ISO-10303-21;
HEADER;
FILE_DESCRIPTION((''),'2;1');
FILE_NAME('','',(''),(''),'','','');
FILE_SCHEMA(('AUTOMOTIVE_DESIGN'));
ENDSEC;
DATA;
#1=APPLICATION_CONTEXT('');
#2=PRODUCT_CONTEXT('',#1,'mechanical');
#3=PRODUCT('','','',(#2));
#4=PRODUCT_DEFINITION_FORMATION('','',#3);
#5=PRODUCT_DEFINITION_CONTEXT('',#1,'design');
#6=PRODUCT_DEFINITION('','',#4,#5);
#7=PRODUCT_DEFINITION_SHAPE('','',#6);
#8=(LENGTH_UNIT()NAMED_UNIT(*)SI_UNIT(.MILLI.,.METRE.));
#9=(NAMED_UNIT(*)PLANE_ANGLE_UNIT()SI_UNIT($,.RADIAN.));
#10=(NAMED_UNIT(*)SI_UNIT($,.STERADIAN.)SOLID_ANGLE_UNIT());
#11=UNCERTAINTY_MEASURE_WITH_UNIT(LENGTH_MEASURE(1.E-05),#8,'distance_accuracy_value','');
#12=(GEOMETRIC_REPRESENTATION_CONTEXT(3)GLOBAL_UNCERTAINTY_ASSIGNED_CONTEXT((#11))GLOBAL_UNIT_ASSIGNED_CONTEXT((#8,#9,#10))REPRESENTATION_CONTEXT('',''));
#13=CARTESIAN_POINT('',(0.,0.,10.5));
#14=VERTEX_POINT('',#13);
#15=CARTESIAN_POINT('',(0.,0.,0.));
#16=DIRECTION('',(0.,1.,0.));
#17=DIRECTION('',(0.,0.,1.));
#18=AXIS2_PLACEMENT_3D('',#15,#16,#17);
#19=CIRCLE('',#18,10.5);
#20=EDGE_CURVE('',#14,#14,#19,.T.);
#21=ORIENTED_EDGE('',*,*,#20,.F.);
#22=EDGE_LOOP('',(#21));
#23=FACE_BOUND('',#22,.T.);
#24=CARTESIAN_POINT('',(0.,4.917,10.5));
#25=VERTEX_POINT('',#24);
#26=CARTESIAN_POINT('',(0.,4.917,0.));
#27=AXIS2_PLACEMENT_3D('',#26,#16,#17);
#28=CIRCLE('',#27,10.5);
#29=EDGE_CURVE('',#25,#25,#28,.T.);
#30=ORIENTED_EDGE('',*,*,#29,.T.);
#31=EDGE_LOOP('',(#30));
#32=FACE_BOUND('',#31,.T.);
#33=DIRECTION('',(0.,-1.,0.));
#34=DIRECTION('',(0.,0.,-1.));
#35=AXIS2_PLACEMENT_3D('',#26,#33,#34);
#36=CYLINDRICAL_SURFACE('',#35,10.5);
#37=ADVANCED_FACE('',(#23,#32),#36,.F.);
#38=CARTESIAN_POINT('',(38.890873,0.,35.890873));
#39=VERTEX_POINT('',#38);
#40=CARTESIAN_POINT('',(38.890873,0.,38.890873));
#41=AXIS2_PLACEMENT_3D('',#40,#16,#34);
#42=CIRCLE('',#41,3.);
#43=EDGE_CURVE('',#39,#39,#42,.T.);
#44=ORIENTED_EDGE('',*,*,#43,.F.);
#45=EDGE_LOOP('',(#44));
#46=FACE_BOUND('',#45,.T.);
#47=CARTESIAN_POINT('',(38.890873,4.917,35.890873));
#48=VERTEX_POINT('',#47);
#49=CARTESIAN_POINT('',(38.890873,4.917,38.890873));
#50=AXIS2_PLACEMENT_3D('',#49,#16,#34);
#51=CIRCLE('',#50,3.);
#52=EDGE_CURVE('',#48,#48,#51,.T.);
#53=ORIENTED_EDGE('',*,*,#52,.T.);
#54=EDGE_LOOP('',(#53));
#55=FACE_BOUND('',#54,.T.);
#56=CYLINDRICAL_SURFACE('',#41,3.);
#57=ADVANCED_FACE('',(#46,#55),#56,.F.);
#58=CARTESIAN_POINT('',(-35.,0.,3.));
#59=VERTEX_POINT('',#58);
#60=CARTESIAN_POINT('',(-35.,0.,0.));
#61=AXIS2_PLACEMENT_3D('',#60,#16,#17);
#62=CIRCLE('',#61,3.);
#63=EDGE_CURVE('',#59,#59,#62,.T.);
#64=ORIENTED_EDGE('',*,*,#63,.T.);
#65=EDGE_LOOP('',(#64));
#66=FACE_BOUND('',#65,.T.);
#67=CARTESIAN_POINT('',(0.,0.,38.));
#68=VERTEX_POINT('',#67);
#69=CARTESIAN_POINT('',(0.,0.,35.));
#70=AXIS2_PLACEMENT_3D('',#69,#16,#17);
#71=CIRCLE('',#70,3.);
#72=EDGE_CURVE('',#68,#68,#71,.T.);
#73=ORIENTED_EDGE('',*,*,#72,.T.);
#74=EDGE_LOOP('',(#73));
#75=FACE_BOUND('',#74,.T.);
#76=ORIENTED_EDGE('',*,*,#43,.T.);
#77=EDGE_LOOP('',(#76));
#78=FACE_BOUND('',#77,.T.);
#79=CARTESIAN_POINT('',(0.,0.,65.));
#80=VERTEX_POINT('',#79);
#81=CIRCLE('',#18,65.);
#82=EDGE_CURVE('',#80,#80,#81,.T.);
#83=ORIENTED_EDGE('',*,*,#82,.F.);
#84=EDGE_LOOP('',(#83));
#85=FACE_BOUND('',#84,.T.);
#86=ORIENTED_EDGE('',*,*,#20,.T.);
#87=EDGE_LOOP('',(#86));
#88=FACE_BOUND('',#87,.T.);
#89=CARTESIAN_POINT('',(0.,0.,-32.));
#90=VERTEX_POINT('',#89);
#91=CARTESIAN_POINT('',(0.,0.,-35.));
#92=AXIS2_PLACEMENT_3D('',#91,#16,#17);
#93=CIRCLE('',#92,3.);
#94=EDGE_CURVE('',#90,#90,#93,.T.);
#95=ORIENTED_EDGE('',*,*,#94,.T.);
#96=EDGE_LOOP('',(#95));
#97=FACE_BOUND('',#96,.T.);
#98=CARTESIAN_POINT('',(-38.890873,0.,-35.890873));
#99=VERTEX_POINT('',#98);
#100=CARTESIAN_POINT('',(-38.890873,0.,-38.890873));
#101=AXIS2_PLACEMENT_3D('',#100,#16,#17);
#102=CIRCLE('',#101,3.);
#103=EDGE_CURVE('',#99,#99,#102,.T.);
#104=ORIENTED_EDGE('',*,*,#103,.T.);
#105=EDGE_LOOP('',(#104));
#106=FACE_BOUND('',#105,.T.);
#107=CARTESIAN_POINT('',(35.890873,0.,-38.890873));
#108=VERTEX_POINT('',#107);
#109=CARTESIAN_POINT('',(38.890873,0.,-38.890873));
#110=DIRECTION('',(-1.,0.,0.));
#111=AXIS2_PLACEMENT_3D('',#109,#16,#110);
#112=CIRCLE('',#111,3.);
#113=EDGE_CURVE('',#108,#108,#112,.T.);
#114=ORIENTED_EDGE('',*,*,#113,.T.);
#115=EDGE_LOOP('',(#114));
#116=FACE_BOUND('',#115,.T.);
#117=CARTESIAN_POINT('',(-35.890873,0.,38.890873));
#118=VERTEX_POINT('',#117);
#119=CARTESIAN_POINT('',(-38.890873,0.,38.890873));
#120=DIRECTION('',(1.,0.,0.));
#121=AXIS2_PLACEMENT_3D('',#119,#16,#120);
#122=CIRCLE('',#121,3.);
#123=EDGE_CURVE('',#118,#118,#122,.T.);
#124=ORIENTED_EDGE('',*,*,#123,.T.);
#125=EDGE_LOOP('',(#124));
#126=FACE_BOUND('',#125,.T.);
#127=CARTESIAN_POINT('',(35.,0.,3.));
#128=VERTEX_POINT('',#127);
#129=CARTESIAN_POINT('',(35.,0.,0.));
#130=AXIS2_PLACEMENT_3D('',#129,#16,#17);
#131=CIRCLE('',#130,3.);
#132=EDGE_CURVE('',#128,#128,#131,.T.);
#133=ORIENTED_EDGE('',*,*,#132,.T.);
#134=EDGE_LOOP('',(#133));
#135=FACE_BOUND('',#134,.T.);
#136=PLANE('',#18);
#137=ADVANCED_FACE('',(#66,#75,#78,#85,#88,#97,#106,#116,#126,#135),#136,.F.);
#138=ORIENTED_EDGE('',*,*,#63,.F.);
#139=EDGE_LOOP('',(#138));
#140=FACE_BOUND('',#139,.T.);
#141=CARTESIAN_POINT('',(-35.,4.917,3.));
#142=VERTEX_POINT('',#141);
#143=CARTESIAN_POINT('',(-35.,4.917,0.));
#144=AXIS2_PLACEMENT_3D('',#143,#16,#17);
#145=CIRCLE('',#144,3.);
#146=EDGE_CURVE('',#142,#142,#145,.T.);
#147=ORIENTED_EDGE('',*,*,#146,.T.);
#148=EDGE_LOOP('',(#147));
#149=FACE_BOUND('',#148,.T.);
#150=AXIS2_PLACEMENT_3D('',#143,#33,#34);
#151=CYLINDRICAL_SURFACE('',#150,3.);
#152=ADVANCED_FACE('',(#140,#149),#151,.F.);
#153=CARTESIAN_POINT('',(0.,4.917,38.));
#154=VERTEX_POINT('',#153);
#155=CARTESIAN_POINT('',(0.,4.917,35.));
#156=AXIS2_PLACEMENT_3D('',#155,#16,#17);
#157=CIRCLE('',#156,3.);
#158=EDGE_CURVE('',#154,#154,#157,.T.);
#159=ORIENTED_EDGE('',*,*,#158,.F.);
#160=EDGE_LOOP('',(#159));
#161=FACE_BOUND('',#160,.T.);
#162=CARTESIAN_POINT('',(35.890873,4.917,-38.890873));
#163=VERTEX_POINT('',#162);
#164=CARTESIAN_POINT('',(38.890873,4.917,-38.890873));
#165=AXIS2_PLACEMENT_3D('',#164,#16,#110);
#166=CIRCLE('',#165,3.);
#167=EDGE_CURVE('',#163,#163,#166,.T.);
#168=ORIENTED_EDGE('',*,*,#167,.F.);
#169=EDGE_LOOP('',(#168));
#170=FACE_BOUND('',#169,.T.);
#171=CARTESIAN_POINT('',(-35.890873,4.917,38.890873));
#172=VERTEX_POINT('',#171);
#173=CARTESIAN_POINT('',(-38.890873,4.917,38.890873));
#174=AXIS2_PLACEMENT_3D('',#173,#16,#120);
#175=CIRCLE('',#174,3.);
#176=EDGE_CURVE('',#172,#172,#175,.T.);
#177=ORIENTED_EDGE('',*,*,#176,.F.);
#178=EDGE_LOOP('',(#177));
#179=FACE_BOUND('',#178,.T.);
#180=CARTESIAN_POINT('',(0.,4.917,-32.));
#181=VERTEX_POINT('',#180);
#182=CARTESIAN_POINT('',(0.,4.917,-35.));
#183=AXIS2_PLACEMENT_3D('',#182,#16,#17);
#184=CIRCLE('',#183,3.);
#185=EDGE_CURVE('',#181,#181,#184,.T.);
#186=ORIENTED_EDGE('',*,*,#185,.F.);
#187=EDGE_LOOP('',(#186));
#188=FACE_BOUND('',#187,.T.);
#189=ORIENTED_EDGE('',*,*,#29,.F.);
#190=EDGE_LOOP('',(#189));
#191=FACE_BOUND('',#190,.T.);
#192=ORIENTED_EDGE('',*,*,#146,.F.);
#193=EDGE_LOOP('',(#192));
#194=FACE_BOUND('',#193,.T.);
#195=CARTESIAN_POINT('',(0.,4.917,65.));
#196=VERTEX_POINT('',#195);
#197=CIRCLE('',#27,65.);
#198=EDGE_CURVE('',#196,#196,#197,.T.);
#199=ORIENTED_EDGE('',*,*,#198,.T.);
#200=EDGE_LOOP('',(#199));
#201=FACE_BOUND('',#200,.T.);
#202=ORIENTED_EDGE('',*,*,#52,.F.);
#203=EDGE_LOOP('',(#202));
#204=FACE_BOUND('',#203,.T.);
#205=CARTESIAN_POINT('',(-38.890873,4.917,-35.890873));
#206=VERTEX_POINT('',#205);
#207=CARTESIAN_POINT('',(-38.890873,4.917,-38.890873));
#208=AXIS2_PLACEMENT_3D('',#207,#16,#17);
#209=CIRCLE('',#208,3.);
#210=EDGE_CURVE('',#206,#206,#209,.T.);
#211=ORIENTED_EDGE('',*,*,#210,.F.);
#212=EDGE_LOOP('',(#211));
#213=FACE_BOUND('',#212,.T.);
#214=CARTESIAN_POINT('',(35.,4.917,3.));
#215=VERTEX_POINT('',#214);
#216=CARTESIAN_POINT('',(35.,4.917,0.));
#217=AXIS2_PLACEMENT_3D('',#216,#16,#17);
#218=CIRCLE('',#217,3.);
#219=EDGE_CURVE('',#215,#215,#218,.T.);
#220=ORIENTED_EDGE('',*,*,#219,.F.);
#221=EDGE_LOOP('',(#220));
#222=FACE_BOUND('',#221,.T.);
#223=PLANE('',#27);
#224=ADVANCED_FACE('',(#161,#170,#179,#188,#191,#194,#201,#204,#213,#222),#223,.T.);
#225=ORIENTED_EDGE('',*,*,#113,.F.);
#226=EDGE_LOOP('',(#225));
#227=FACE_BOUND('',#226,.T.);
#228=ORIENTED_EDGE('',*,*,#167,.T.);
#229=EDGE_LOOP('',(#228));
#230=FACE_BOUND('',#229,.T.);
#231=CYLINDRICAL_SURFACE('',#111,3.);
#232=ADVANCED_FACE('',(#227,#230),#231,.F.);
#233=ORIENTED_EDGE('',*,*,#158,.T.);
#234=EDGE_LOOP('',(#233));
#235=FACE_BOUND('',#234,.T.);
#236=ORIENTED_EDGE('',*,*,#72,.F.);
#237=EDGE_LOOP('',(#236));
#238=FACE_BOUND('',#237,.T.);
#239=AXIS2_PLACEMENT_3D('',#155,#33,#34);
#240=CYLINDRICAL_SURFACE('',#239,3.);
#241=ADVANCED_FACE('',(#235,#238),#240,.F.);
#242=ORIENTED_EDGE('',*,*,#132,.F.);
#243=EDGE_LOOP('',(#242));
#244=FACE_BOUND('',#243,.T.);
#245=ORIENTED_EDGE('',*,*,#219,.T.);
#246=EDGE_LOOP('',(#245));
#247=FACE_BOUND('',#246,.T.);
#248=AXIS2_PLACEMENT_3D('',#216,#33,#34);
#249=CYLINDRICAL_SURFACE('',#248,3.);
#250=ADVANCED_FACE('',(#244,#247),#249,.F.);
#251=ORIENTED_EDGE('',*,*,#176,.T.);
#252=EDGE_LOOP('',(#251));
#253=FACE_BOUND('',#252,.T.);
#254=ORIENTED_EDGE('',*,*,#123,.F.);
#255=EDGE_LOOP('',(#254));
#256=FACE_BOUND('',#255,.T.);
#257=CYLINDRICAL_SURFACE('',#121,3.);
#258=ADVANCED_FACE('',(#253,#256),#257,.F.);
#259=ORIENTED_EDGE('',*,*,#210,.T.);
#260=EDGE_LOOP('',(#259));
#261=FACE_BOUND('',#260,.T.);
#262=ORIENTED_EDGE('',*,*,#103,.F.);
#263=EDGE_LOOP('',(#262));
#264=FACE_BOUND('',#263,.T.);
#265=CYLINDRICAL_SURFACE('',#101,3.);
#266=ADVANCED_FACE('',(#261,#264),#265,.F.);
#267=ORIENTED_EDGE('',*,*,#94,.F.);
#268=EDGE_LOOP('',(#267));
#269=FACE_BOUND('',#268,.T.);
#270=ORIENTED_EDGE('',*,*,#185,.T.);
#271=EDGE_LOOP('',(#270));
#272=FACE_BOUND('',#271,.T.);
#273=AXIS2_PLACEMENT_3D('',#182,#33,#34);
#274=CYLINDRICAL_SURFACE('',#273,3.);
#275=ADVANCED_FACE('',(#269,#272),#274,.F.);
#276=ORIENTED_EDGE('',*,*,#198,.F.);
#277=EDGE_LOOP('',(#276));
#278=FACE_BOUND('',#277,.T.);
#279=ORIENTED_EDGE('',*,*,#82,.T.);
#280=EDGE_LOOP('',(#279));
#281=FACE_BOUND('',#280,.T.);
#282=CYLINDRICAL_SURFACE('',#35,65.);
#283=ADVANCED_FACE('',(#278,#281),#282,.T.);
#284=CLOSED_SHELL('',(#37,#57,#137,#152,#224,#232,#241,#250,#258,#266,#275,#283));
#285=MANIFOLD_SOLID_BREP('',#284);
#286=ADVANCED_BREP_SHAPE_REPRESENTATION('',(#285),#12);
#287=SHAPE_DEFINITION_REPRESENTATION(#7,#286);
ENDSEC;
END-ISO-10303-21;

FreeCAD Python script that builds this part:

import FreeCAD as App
import Part
import Sketcher

doc = App.newDocument("Part")
body = doc.addObject("PartDesign::Body", "Body")

sketch1 = body.newObject("Sketcher::SketchObject", "Sketch")
sketch1.AttachmentSupport = (doc.getObject("XZ_Plane"), [""])
sketch1.MapMode = "FlatFace"
sketch1.addGeometry(Part.Circle(App.Vector(0, 0, 0), App.Vector(0, 0, 1), 65), False)
sketch1.addGeometry(Part.Circle(App.Vector(0, 35, 0), App.Vector(0, 0, 1), 3), False)
sketch1.addGeometry(Part.Circle(App.Vector(-35, 0, 0), App.Vector(0, 0, 1), 3), False)
sketch1.addGeometry(Part.Circle(App.Vector(0, 0, 0), App.Vector(0, 0, 1), 10.5), False)
sketch1.addGeometry(Part.Circle(App.Vector(35, 0, 0), App.Vector(0, 0, 1), 3), False)
sketch1.addGeometry(Part.Circle(App.Vector(0, -35, 0), App.Vector(0, 0, 1), 3), False)
sketch1.addConstraint(Sketcher.Constraint("Coincident", 0, 3, -1, 1))
sketch1.addConstraint(Sketcher.Constraint("Coincident", 3, 3, -1, 1))
sketch1.addConstraint(Sketcher.Constraint("Equal", 1, 2))
sketch1.addConstraint(Sketcher.Constraint("Equal", 2, 4))
sketch1.addConstraint(Sketcher.Constraint("Equal", 4, 5))
sketch1.addConstraint(Sketcher.Constraint("Symmetric", 2, 3, 4, 3, -1, 1))
sketch1.addConstraint(Sketcher.Constraint("Symmetric", 1, 3, 5, 3, -1, 1))
sketch1.addConstraint(Sketcher.Constraint("PointOnObject", 1, 3, -2))
sketch1.addConstraint(Sketcher.Constraint("PointOnObject", 2, 3, -1))
sketch1.addConstraint(Sketcher.Constraint("Diameter", 0, 130.0))
sketch1.addConstraint(Sketcher.Constraint("Diameter", 1, 6.0))
sketch1.addConstraint(Sketcher.Constraint("Diameter", 3, 21.0))
sketch1.addConstraint(Sketcher.Constraint("DistanceY", -1, 1, 1, 3, 35.0))
sketch1.addConstraint(Sketcher.Constraint("DistanceX", 2, 3, -1, 1, 35.0))
pad1 = body.newObject("PartDesign::Pad", "Pad")
pad1.Profile = sketch1
pad1.Length = 4.917
pad1.Reversed = True

sketch2 = body.newObject("Sketcher::SketchObject", "Sketch001")
sketch2.AttachmentSupport = (doc.getObject("XZ_Plane"), [""])
sketch2.MapMode = "FlatFace"
sketch2.AttachmentOffset = App.Placement(App.Vector(0, 0, 1), App.Rotation())
sketch2.addGeometry(Part.Circle(App.Vector(-38.890873, -38.890873, 0), App.Vector(0, 0, 1), 3), False)
sketch2.addConstraint(Sketcher.Constraint("Diameter", 0, 6.0))
sketch2.addConstraint(Sketcher.Constraint("DistanceX", 0, 3, -1, 1, 38.890873))
sketch2.addConstraint(Sketcher.Constraint("DistanceY", 0, 3, -1, 1, 38.890873))
pocket1 = body.newObject("PartDesign::Pocket", "Pocket")
pocket1.Profile = sketch2
pocket1.Length = 6.917
doc.recompute()

polarpattern = body.newObject("PartDesign::PolarPattern", "PolarPattern")
polarpattern.Originals = [pocket1]
polarpattern.Axis = (doc.getObject("Y_Axis"), [""])
polarpattern.Angle = 360
polarpattern.Occurrences = 4
body.Tip = polarpattern

doc.recompute()
